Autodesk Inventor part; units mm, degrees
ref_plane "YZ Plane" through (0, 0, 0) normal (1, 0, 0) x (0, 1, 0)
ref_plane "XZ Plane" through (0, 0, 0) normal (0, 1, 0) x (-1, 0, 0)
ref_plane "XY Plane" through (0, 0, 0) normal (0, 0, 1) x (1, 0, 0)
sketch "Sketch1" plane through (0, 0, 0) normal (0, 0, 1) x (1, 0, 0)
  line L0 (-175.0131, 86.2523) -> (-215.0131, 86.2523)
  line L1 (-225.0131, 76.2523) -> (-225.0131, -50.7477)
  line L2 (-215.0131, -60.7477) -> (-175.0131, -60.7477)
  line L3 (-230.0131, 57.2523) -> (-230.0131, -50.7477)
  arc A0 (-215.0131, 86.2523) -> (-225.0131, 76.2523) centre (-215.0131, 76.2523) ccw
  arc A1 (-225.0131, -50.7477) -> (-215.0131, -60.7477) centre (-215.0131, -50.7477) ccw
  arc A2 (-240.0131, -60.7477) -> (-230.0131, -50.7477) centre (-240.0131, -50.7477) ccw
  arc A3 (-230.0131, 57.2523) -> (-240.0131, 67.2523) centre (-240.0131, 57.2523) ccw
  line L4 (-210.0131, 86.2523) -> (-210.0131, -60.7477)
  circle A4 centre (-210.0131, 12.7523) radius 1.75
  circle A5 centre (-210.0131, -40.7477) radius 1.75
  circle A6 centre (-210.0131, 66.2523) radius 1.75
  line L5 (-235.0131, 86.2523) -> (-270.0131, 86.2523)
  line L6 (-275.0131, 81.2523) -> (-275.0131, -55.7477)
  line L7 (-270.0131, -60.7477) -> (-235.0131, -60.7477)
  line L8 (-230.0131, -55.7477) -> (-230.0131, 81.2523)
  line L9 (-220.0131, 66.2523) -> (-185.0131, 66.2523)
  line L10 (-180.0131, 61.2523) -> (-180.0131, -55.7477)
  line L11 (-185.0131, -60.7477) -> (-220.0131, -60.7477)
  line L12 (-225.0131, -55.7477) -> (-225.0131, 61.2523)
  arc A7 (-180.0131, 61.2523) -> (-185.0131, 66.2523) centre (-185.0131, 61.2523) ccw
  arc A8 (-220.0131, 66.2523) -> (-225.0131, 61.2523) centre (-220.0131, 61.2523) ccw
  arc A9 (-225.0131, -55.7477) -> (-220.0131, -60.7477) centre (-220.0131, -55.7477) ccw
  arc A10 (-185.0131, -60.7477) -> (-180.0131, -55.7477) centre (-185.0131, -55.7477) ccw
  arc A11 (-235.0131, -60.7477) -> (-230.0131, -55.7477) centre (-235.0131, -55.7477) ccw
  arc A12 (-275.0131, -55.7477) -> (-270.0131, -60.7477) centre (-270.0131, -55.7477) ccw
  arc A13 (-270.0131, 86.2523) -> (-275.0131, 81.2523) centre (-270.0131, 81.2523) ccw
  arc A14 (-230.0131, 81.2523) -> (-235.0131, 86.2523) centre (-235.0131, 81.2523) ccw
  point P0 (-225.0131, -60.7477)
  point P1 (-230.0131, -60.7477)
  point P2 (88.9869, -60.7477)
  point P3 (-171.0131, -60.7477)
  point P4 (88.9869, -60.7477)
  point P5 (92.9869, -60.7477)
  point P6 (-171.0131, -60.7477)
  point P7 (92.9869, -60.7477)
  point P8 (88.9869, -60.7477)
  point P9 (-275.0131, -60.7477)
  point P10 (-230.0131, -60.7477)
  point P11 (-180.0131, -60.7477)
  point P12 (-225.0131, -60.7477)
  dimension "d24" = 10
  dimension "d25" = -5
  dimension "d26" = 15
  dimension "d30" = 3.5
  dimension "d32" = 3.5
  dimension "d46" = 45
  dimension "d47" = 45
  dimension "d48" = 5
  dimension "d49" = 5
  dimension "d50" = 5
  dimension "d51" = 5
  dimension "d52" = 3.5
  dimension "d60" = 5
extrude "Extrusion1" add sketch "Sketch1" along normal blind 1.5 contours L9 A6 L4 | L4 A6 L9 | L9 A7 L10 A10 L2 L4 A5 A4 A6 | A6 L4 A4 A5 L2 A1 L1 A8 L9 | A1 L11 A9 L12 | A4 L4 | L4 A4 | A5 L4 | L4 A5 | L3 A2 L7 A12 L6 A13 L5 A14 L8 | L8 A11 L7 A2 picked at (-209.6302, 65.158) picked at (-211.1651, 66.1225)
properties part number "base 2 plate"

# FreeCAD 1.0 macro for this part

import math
import FreeCAD as App
import Part
import Sketcher

doc = App.newDocument("Part")
params = doc.addObject("Spreadsheet::Sheet", "Params")
for row, (alias, value) in enumerate([
    ("sketch1_radius", "5 mm"),
    ("sketch1_height", "117 mm"),
    ("pad1_length", "1.5 mm"),
], start=1):
    params.set(f"A{row}", alias)
    params.set(f"B{row}", "=" + value)
    params.setAlias(f"B{row}", alias)

body = doc.addObject("PartDesign::Body", "Body")
body.AllowCompound = True

# Sketch on XY plane
sketch1 = doc.addObject("Sketcher::SketchObject", "Sketch")
body.addObject(sketch1)
sketch1.AttachmentSupport = (doc.XY_Plane, [""])
sketch1.MapMode = "FlatFace"
sketch1.addGeometry([
    Part.ArcOfCircle(Part.Circle(App.Vector(-220.0131, 61.2523, 0), App.Vector(0, 0, 1), 5), math.radians(90), math.radians(180)),  # 0
    Part.LineSegment(App.Vector(-225.0131, 61.2523, 0), App.Vector(-225.0131, -55.7477, 0)),  # 1
    Part.ArcOfCircle(Part.Circle(App.Vector(-220.0131, -55.7477, 0), App.Vector(0, 0, 1), 5), math.radians(180), math.radians(270)),  # 2
    Part.LineSegment(App.Vector(-220.0131, -60.7477, 0), App.Vector(-185.0131, -60.7477, 0)),  # 3
    Part.ArcOfCircle(Part.Circle(App.Vector(-185.0131, -55.7477, 0), App.Vector(0, 0, 1), 5), math.radians(-90), math.radians(0)),  # 4
    Part.LineSegment(App.Vector(-180.0131, -55.7477, 0), App.Vector(-180.0131, 61.2523, 0)),  # 5
    Part.ArcOfCircle(Part.Circle(App.Vector(-185.0131, 61.2523, 0), App.Vector(0, 0, 1), 5), math.radians(0), math.radians(90)),  # 6
    Part.LineSegment(App.Vector(-185.0131, 66.2523, 0), App.Vector(-220.0131, 66.2523, 0)),  # 7
    Part.ArcOfCircle(Part.Circle(App.Vector(-235.0131, 81.2523, 0), App.Vector(0, 0, 1), 5), math.radians(0), math.radians(90)),  # 8
    Part.LineSegment(App.Vector(-235.0131, 86.2523, 0), App.Vector(-270.0131, 86.2523, 0)),  # 9
    Part.ArcOfCircle(Part.Circle(App.Vector(-270.0131, 81.2523, 0), App.Vector(0, 0, 1), 5), math.radians(90), math.radians(180)),  # 10
    Part.LineSegment(App.Vector(-275.0131, 81.2523, 0), App.Vector(-275.0131, -55.7477, 0)),  # 11
    Part.ArcOfCircle(Part.Circle(App.Vector(-270.0131, -55.7477, 0), App.Vector(0, 0, 1), 5), math.radians(180), math.radians(270)),  # 12
    Part.LineSegment(App.Vector(-270.0131, -60.7477, 0), App.Vector(-235.0131, -60.7477, 0)),  # 13
    Part.ArcOfCircle(Part.Circle(App.Vector(-235.0131, -55.7477, 0), App.Vector(0, 0, 1), 5), math.radians(-90), math.radians(0)),  # 14
    Part.LineSegment(App.Vector(-230.0131, -55.7477, 0), App.Vector(-230.0131, 81.2523, 0)),  # 15
], False)
sketch1.addConstraint([
    Sketcher.Constraint("Tangent", 0, 2, 1, 1),
    Sketcher.Constraint("Tangent", 1, 2, 2, 1),
    Sketcher.Constraint("Tangent", 2, 2, 3, 1),
    Sketcher.Constraint("Tangent", 3, 2, 4, 1),
    Sketcher.Constraint("Tangent", 4, 2, 5, 1),
    Sketcher.Constraint("Tangent", 5, 2, 6, 1),
    Sketcher.Constraint("Tangent", 6, 2, 7, 1),
    Sketcher.Constraint("Tangent", 7, 2, 0, 1),
    Sketcher.Constraint("Tangent", 8, 2, 9, 1),
    Sketcher.Constraint("Tangent", 9, 2, 10, 1),
    Sketcher.Constraint("Tangent", 10, 2, 11, 1),
    Sketcher.Constraint("Tangent", 11, 2, 12, 1),
    Sketcher.Constraint("Tangent", 12, 2, 13, 1),
    Sketcher.Constraint("Tangent", 13, 2, 14, 1),
    Sketcher.Constraint("Tangent", 14, 2, 15, 1),
    Sketcher.Constraint("Tangent", 15, 2, 8, 1),
    Sketcher.Constraint("Vertical", 1),
    Sketcher.Constraint("Horizontal", 3),
    Sketcher.Constraint("Vertical", 5),
    Sketcher.Constraint("Horizontal", 7),
    Sketcher.Constraint("Horizontal", 9),
    Sketcher.Constraint("Vertical", 11),
    Sketcher.Constraint("Horizontal", 13),
    Sketcher.Constraint("Vertical", 15),
    Sketcher.Constraint("Equal", 0, 2),
    Sketcher.Constraint("Equal", 2, 4),
    Sketcher.Constraint("Equal", 4, 6),
    Sketcher.Constraint("Equal", 6, 8),
    Sketcher.Constraint("Equal", 8, 10),
    Sketcher.Constraint("Equal", 10, 12),
    Sketcher.Constraint("Equal", 12, 14),
    Sketcher.Constraint("Horizontal", 4, 3, 12, 3),
    Sketcher.Constraint("Equal", 7, 9),
    Sketcher.Constraint("Radius", 0, 5.0),
    Sketcher.Constraint("DistanceX", 8, 3, 0, 3, 15.0),
    Sketcher.Constraint("DistanceX", 10, 3, 0, 2, 45.0),
    Sketcher.Constraint("DistanceY", 6, 2, 8, 3, 15.0),
    Sketcher.Constraint("DistanceY", 1, 2, 1, 1, 117.0),
    Sketcher.Constraint("DistanceX", 0, 3, -1, 1, 220.013),
    Sketcher.Constraint("DistanceY", -1, 1, 0, 3, 61.2523),
])
sketch1.setExpression("Constraints[33]", "Params.sketch1_radius")
sketch1.setExpression("Constraints[37]", "Params.sketch1_height")
pad1 = doc.addObject("PartDesign::Pad", "Pad")
body.addObject(pad1)
pad1.Profile = sketch1
pad1.setExpression("Length", "Params.pad1_length")

doc.recompute()
